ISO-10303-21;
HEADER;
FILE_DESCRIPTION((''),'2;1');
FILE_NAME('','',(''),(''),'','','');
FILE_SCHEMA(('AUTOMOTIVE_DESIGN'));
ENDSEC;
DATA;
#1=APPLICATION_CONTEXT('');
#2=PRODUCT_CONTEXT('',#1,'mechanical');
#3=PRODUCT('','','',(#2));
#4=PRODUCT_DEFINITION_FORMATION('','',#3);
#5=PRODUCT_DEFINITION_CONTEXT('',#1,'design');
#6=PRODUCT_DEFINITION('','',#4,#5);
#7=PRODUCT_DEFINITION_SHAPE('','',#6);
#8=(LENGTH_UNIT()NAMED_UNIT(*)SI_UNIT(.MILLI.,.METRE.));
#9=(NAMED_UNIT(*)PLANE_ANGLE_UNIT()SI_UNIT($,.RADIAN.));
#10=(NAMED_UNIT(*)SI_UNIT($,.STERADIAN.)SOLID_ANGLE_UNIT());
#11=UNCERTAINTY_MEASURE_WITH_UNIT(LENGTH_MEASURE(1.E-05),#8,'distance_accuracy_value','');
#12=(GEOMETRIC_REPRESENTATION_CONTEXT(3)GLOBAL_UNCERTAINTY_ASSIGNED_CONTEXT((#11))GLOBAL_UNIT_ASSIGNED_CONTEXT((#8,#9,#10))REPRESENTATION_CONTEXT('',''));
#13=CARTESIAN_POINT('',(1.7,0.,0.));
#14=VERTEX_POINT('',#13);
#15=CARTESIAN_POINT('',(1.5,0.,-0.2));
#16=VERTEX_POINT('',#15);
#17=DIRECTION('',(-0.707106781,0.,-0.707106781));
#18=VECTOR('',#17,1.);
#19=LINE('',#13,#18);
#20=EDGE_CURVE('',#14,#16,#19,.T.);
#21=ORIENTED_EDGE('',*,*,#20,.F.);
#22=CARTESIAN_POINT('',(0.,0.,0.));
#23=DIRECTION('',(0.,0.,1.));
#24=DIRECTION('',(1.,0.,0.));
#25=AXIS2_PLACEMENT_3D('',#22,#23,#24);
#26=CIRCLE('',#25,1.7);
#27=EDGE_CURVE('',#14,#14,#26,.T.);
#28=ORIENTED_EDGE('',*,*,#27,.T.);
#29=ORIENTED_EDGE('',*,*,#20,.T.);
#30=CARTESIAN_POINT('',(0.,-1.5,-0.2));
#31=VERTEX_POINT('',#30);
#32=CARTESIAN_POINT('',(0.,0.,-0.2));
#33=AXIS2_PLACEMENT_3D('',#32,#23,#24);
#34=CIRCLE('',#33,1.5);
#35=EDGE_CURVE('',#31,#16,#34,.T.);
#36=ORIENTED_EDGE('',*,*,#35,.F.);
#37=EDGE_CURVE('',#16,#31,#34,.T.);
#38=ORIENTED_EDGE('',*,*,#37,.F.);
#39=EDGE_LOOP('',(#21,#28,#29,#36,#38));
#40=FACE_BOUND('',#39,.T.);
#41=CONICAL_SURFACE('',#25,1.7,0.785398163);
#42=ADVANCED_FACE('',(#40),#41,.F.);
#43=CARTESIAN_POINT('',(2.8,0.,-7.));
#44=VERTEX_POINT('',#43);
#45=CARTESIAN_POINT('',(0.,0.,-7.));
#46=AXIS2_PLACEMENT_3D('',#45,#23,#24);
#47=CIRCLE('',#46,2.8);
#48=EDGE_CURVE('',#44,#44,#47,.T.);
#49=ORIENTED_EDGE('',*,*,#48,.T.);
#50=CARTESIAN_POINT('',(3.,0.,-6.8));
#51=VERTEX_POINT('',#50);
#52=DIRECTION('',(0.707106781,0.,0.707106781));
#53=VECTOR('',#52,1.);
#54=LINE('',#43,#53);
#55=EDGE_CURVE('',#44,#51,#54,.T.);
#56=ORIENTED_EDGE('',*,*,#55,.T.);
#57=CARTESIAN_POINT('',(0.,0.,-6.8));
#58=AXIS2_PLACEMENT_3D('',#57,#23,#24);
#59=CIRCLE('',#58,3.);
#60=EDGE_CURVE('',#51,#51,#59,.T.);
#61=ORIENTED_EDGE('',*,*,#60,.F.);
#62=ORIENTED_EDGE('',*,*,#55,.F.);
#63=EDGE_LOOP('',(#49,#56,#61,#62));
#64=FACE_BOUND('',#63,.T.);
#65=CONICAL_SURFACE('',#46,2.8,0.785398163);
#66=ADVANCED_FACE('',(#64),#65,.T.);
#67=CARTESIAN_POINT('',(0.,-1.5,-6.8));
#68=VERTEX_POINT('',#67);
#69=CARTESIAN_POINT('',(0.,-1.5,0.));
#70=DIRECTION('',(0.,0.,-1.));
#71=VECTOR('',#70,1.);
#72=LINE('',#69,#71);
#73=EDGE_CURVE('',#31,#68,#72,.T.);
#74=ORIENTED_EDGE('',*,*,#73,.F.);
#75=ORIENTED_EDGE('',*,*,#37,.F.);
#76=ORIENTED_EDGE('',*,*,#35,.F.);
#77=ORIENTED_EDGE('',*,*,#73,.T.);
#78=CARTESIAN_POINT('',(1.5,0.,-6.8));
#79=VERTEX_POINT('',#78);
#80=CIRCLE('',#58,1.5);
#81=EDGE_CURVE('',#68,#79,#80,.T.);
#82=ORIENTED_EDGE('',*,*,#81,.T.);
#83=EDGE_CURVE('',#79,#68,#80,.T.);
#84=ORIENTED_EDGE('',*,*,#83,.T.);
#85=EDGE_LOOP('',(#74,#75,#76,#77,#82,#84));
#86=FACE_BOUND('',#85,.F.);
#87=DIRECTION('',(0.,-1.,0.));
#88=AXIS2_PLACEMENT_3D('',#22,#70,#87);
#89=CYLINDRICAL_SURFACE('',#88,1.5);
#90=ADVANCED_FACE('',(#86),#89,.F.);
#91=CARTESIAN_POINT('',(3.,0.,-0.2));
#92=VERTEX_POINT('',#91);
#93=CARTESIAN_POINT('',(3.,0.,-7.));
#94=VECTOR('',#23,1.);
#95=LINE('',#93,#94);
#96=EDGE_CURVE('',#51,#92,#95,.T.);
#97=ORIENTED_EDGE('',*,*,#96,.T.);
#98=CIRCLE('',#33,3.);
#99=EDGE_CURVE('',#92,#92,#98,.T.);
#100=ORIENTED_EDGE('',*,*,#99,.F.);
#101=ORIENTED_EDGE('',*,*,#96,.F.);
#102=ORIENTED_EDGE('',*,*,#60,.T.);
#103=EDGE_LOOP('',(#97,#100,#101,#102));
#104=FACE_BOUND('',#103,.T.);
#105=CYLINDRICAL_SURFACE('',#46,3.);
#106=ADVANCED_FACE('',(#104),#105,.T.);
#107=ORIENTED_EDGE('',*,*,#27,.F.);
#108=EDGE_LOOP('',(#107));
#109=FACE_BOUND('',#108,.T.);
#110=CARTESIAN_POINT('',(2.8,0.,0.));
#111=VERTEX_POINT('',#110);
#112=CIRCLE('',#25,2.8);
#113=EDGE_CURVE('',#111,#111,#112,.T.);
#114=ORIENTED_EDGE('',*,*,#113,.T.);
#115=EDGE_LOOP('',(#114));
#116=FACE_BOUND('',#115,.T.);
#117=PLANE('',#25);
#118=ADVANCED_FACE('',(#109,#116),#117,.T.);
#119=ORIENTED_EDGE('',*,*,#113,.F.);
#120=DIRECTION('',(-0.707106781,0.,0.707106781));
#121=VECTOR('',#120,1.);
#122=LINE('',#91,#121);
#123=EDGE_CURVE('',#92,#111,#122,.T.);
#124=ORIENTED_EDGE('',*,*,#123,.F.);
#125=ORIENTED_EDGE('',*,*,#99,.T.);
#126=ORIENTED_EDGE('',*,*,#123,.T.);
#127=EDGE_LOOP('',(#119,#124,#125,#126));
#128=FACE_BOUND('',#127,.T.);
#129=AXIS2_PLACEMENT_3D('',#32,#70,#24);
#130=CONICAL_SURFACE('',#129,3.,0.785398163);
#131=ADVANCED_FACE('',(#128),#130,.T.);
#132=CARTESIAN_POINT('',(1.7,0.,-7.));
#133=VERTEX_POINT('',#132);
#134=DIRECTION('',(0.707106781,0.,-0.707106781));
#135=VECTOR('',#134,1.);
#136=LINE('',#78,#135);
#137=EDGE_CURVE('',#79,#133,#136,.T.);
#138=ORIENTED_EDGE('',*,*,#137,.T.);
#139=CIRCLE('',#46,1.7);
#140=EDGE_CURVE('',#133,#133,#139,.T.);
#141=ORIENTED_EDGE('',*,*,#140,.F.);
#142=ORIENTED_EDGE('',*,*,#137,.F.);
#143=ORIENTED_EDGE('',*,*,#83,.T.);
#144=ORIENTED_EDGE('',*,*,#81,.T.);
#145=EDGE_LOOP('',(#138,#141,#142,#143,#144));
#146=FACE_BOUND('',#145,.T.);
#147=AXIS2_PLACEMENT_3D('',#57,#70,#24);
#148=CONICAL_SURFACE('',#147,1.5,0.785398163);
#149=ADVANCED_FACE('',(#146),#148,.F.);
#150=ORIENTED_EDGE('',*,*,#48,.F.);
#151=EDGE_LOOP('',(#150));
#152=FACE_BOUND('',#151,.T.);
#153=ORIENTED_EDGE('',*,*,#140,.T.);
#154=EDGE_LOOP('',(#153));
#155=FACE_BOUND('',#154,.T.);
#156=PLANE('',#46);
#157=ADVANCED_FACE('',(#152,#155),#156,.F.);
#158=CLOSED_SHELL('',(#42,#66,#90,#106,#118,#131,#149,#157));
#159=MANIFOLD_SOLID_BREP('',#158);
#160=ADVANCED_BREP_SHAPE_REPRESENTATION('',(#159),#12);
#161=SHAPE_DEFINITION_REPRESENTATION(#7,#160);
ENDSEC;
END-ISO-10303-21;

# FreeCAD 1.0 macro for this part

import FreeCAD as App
import Part
import Sketcher

V = App.Vector


def add_polygon(sketch, points):
    """Adds a closed chain of lines whose ends are joined by coincident constraints."""
    first, n = sketch.GeometryCount, len(points)
    for a, b in zip(points, points[1:] + points[:1]):
        sketch.addGeometry(Part.LineSegment(App.Vector(*a, 0), App.Vector(*b, 0)), False)
    for i in range(n):
        sketch.addConstraint(Sketcher.Constraint("Coincident", first + i, 2, first + (i + 1) % n, 1))

doc = App.newDocument("Part")
body = doc.addObject("PartDesign::Body", "Body")

# Sketch on XZ plane
sketch1 = body.newObject("Sketcher::SketchObject", "Sketch")
sketch1.AttachmentSupport = (doc.getObject("XZ_Plane"), [""])
sketch1.MapMode = "FlatFace"
add_polygon(sketch1, [(0, -7), (0, 0), (3, 0), (3, -7)])  # lines 0-3
sketch1.addConstraint(Sketcher.Constraint("Vertical", 0))
sketch1.addConstraint(Sketcher.Constraint("Horizontal", 1))
sketch1.addConstraint(Sketcher.Constraint("Vertical", 2))
sketch1.addConstraint(Sketcher.Constraint("Horizontal", 3))
sketch1.addConstraint(Sketcher.Constraint("Coincident", 0, 2, -1, 1))
sketch1.addConstraint(Sketcher.Constraint("DistanceX", 1, 1, 1, 2, 3.0))
sketch1.addConstraint(Sketcher.Constraint("DistanceY", 0, 1, 0, 2, 7.0))
revolution = body.newObject("PartDesign::Revolution", "Revolution")
revolution.Profile = sketch1
revolution.ReferenceAxis = (sketch1, ["V_Axis"])
revolution.Angle = 360

# Sketch on XZ plane
sketch2 = body.newObject("Sketcher::SketchObject", "Sketch001")
sketch2.AttachmentSupport = (doc.getObject("XZ_Plane"), [""])
sketch2.MapMode = "FlatFace"
add_polygon(sketch2, [(3, -7), (2.8, -7), (3, -6.8)])  # lines 0-2
sketch2.addConstraint(Sketcher.Constraint("Horizontal", 0))
sketch2.addConstraint(Sketcher.Constraint("Vertical", 2))
sketch2.addConstraint(Sketcher.Constraint("Equal", 0, 2))
sketch2.addConstraint(Sketcher.Constraint("DistanceX", 0, 2, 0, 1, 0.2))
sketch2.addConstraint(Sketcher.Constraint("DistanceY", 0, 2, -1, 1, 7.0))
sketch2.addConstraint(Sketcher.Constraint("DistanceX", -1, 1, 1, 2, 3.0))
groove = body.newObject("PartDesign::Groove", "Groove")
groove.Profile = sketch2
groove.ReferenceAxis = (sketch2, ["V_Axis"])
groove.Angle = 360

# Sketch on XZ plane
sketch3 = body.newObject("Sketcher::SketchObject", "Sketch002")
sketch3.AttachmentSupport = (doc.getObject("XZ_Plane"), [""])
sketch3.MapMode = "FlatFace"
add_polygon(sketch3, [(3, -0.2), (2.8, 0), (3, 0)])  # lines 0-2
sketch3.addConstraint(Sketcher.Constraint("Horizontal", 1))
sketch3.addConstraint(Sketcher.Constraint("Vertical", 2))
sketch3.addConstraint(Sketcher.Constraint("PointOnObject", 0, 2, -1))
sketch3.addConstraint(Sketcher.Constraint("Equal", 1, 2))
sketch3.addConstraint(Sketcher.Constraint("DistanceX", 1, 1, 1, 2, 0.2))
sketch3.addConstraint(Sketcher.Constraint("DistanceX", -1, 1, 1, 2, 3.0))
groove2 = body.newObject("PartDesign::Groove", "Groove001")
groove2.Profile = sketch3
groove2.ReferenceAxis = (sketch3, ["V_Axis"])
groove2.Angle = 360

# Sketch on XY plane
sketch4 = body.newObject("Sketcher::SketchObject", "Sketch003")
sketch4.AttachmentSupport = (doc.getObject("XY_Plane"), [""])
sketch4.MapMode = "FlatFace"
sketch4.addGeometry(Part.Circle(V(0, 0, 0), V(0, 0, 1), 1.5), False)
sketch4.addConstraint(Sketcher.Constraint("Coincident", 0, 3, -1, 1))
sketch4.addConstraint(Sketcher.Constraint("Diameter", 0, 3.0))
doc.recompute()
hole = body.newObject("PartDesign::Hole", "Hole")
hole.Profile = sketch4
hole.ThreadType = "None"
hole.Diameter = 3
hole.DepthType = "Dimension"
hole.Depth = 7
hole.DrillPoint = "Flat"

# Sketch on XZ plane
sketch5 = body.newObject("Sketcher::SketchObject", "Sketch004")
sketch5.AttachmentSupport = (doc.getObject("XZ_Plane"), [""])
sketch5.MapMode = "FlatFace"
add_polygon(sketch5, [(1.5, -7), (1.5, -6.8), (1.7, -7)])  # lines 0-2
sketch5.addConstraint(Sketcher.Constraint("Vertical", 0))
sketch5.addConstraint(Sketcher.Constraint("Horizontal", 2))
sketch5.addConstraint(Sketcher.Constraint("Equal", 2, 0))
sketch5.addConstraint(Sketcher.Constraint("DistanceX", 2, 2, 2, 1, 0.2))
sketch5.addConstraint(Sketcher.Constraint("DistanceY", 1, 2, -1, 1, 7.0))
sketch5.addConstraint(Sketcher.Constraint("DistanceX", -1, 1, 0, 2, 1.5))
groove3 = body.newObject("PartDesign::Groove", "Groove002")
groove3.Profile = sketch5
groove3.ReferenceAxis = (sketch5, ["V_Axis"])
groove3.Angle = 360

# Sketch on XZ plane
sketch6 = body.newObject("Sketcher::SketchObject", "Sketch005")
sketch6.AttachmentSupport = (doc.getObject("XZ_Plane"), [""])
sketch6.MapMode = "FlatFace"
add_polygon(sketch6, [(1.7, 0), (1.5, -0.2), (1.5, 0)])  # lines 0-2
sketch6.addConstraint(Sketcher.Constraint("Vertical", 1))
sketch6.addConstraint(Sketcher.Constraint("Horizontal", 2))
sketch6.addConstraint(Sketcher.Constraint("PointOnObject", 1, 2, -1))
sketch6.addConstraint(Sketcher.Constraint("Equal", 2, 1))
sketch6.addConstraint(Sketcher.Constraint("DistanceX", 2, 1, 2, 2, 0.2))
sketch6.addConstraint(Sketcher.Constraint("DistanceX", -1, 1, 0, 2, 1.5))
groove4 = body.newObject("PartDesign::Groove", "Groove003")
groove4.Profile = sketch6
groove4.ReferenceAxis = (sketch6, ["V_Axis"])
groove4.Angle = 360

doc.recompute()
